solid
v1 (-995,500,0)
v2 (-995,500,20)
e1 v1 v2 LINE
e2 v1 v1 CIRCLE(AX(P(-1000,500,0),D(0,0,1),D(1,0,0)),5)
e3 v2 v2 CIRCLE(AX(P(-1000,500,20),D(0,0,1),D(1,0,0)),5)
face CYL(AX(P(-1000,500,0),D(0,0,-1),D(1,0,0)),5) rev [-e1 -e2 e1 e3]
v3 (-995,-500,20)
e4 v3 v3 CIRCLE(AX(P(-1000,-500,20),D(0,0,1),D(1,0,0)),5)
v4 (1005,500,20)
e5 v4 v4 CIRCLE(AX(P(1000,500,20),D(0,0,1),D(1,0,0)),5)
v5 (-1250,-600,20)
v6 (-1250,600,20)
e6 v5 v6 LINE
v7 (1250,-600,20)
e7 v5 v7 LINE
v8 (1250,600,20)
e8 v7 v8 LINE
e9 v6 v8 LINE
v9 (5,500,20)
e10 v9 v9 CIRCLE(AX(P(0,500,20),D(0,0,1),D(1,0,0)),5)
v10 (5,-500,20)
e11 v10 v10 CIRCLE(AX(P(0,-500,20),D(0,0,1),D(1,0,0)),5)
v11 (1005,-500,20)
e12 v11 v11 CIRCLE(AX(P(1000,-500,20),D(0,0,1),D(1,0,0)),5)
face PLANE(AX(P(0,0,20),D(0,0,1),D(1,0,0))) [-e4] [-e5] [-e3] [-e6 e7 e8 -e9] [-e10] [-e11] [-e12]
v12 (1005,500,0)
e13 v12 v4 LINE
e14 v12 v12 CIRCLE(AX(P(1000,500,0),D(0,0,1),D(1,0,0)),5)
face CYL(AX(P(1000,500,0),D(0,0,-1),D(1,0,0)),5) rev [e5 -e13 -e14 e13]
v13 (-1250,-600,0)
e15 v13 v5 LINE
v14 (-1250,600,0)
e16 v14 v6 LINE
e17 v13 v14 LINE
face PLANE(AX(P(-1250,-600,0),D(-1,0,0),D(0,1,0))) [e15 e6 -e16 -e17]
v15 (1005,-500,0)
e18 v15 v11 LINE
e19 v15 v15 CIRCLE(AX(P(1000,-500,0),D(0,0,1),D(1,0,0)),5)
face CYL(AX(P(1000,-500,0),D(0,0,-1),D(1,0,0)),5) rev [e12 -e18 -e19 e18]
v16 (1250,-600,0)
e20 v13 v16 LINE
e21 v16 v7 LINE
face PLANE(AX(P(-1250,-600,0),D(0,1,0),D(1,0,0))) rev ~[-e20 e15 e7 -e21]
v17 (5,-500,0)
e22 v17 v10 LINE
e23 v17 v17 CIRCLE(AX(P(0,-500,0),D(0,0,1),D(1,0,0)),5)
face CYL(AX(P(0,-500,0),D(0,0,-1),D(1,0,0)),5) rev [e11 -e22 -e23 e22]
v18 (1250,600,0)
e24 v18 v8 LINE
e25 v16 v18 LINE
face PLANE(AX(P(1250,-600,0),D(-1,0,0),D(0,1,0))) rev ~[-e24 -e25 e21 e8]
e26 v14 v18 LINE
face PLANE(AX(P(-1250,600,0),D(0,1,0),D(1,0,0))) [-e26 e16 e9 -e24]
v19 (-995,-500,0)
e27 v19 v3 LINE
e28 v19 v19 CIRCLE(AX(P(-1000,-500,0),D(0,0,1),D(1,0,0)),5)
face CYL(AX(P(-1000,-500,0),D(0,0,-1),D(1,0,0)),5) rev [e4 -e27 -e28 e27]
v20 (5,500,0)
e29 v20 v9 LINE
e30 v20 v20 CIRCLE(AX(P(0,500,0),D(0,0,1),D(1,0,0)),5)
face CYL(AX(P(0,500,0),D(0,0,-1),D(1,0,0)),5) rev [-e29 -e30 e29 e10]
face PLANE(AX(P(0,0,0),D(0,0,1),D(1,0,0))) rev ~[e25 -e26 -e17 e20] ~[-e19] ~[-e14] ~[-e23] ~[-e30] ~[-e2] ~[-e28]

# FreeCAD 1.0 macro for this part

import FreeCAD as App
import Part
import Sketcher

V = App.Vector


def add_polygon(sketch, points):
    """Adds a closed chain of lines whose ends are joined by coincident constraints."""
    first, n = sketch.GeometryCount, len(points)
    for a, b in zip(points, points[1:] + points[:1]):
        sketch.addGeometry(Part.LineSegment(App.Vector(*a, 0), App.Vector(*b, 0)), False)
    for i in range(n):
        sketch.addConstraint(Sketcher.Constraint("Coincident", first + i, 2, first + (i + 1) % n, 1))

doc = App.newDocument("Part")
body = doc.addObject("PartDesign::Body", "Body")

# Sketch on XY plane
sketch1 = body.newObject("Sketcher::SketchObject", "Sketch")
sketch1.AttachmentSupport = (doc.getObject("XY_Plane"), [""])
sketch1.MapMode = "FlatFace"
add_polygon(sketch1, [(-1250, 600), (-1250, -600), (1250, -600), (1250, 600)])  # lines 0-3
sketch1.addGeometry(Part.Circle(V(-1000, -500, 0), V(0, 0, 1), 5), False)  # 4
sketch1.addGeometry(Part.Circle(V(0, -500, 0), V(0, 0, 1), 5), False)  # 5
sketch1.addGeometry(Part.Circle(V(1000, -500, 0), V(0, 0, 1), 5), False)  # 6
sketch1.addGeometry(Part.Circle(V(-1000, 500, 0), V(0, 0, 1), 5), False)  # 7
sketch1.addGeometry(Part.Circle(V(0, 500, 0), V(0, 0, 1), 5), False)  # 8
sketch1.addGeometry(Part.Circle(V(1000, 500, 0), V(0, 0, 1), 5), False)  # 9
sketch1.addConstraint(Sketcher.Constraint("Vertical", 0))
sketch1.addConstraint(Sketcher.Constraint("Horizontal", 1))
sketch1.addConstraint(Sketcher.Constraint("Vertical", 2))
sketch1.addConstraint(Sketcher.Constraint("Horizontal", 3))
sketch1.addConstraint(Sketcher.Constraint("Equal", 4, 5))
sketch1.addConstraint(Sketcher.Constraint("Equal", 5, 6))
sketch1.addConstraint(Sketcher.Constraint("Equal", 6, 7))
sketch1.addConstraint(Sketcher.Constraint("Equal", 7, 8))
sketch1.addConstraint(Sketcher.Constraint("Equal", 8, 9))
sketch1.addConstraint(Sketcher.Constraint("Symmetric", 6, 3, 7, 3, -1, 1))
sketch1.addConstraint(Sketcher.Constraint("Symmetric", 5, 3, 8, 3, -1, 1))
sketch1.addConstraint(Sketcher.Constraint("Symmetric", 4, 3, 9, 3, -1, 1))
sketch1.addConstraint(Sketcher.Constraint("Symmetric", 0, 2, 2, 2, -1, 1))
sketch1.addConstraint(Sketcher.Constraint("Symmetric", 4, 3, 6, 3, -2))
sketch1.addConstraint(Sketcher.Constraint("PointOnObject", 5, 3, -2))
sketch1.addConstraint(Sketcher.Constraint("Horizontal", 4, 3, 5, 3))
sketch1.addConstraint(Sketcher.Constraint("Diameter", 4, 10.0))
sketch1.addConstraint(Sketcher.Constraint("DistanceX", 1, 1, 1, 2, 2500.0))
sketch1.addConstraint(Sketcher.Constraint("DistanceY", 0, 2, 0, 1, 1200.0))
sketch1.addConstraint(Sketcher.Constraint("DistanceX", 4, 3, -1, 1, 1000.0))
sketch1.addConstraint(Sketcher.Constraint("DistanceY", 4, 3, -1, 1, 500.0))
pad1 = body.newObject("PartDesign::Pad", "Pad")
pad1.Profile = sketch1
pad1.Length = 20

doc.recompute()
